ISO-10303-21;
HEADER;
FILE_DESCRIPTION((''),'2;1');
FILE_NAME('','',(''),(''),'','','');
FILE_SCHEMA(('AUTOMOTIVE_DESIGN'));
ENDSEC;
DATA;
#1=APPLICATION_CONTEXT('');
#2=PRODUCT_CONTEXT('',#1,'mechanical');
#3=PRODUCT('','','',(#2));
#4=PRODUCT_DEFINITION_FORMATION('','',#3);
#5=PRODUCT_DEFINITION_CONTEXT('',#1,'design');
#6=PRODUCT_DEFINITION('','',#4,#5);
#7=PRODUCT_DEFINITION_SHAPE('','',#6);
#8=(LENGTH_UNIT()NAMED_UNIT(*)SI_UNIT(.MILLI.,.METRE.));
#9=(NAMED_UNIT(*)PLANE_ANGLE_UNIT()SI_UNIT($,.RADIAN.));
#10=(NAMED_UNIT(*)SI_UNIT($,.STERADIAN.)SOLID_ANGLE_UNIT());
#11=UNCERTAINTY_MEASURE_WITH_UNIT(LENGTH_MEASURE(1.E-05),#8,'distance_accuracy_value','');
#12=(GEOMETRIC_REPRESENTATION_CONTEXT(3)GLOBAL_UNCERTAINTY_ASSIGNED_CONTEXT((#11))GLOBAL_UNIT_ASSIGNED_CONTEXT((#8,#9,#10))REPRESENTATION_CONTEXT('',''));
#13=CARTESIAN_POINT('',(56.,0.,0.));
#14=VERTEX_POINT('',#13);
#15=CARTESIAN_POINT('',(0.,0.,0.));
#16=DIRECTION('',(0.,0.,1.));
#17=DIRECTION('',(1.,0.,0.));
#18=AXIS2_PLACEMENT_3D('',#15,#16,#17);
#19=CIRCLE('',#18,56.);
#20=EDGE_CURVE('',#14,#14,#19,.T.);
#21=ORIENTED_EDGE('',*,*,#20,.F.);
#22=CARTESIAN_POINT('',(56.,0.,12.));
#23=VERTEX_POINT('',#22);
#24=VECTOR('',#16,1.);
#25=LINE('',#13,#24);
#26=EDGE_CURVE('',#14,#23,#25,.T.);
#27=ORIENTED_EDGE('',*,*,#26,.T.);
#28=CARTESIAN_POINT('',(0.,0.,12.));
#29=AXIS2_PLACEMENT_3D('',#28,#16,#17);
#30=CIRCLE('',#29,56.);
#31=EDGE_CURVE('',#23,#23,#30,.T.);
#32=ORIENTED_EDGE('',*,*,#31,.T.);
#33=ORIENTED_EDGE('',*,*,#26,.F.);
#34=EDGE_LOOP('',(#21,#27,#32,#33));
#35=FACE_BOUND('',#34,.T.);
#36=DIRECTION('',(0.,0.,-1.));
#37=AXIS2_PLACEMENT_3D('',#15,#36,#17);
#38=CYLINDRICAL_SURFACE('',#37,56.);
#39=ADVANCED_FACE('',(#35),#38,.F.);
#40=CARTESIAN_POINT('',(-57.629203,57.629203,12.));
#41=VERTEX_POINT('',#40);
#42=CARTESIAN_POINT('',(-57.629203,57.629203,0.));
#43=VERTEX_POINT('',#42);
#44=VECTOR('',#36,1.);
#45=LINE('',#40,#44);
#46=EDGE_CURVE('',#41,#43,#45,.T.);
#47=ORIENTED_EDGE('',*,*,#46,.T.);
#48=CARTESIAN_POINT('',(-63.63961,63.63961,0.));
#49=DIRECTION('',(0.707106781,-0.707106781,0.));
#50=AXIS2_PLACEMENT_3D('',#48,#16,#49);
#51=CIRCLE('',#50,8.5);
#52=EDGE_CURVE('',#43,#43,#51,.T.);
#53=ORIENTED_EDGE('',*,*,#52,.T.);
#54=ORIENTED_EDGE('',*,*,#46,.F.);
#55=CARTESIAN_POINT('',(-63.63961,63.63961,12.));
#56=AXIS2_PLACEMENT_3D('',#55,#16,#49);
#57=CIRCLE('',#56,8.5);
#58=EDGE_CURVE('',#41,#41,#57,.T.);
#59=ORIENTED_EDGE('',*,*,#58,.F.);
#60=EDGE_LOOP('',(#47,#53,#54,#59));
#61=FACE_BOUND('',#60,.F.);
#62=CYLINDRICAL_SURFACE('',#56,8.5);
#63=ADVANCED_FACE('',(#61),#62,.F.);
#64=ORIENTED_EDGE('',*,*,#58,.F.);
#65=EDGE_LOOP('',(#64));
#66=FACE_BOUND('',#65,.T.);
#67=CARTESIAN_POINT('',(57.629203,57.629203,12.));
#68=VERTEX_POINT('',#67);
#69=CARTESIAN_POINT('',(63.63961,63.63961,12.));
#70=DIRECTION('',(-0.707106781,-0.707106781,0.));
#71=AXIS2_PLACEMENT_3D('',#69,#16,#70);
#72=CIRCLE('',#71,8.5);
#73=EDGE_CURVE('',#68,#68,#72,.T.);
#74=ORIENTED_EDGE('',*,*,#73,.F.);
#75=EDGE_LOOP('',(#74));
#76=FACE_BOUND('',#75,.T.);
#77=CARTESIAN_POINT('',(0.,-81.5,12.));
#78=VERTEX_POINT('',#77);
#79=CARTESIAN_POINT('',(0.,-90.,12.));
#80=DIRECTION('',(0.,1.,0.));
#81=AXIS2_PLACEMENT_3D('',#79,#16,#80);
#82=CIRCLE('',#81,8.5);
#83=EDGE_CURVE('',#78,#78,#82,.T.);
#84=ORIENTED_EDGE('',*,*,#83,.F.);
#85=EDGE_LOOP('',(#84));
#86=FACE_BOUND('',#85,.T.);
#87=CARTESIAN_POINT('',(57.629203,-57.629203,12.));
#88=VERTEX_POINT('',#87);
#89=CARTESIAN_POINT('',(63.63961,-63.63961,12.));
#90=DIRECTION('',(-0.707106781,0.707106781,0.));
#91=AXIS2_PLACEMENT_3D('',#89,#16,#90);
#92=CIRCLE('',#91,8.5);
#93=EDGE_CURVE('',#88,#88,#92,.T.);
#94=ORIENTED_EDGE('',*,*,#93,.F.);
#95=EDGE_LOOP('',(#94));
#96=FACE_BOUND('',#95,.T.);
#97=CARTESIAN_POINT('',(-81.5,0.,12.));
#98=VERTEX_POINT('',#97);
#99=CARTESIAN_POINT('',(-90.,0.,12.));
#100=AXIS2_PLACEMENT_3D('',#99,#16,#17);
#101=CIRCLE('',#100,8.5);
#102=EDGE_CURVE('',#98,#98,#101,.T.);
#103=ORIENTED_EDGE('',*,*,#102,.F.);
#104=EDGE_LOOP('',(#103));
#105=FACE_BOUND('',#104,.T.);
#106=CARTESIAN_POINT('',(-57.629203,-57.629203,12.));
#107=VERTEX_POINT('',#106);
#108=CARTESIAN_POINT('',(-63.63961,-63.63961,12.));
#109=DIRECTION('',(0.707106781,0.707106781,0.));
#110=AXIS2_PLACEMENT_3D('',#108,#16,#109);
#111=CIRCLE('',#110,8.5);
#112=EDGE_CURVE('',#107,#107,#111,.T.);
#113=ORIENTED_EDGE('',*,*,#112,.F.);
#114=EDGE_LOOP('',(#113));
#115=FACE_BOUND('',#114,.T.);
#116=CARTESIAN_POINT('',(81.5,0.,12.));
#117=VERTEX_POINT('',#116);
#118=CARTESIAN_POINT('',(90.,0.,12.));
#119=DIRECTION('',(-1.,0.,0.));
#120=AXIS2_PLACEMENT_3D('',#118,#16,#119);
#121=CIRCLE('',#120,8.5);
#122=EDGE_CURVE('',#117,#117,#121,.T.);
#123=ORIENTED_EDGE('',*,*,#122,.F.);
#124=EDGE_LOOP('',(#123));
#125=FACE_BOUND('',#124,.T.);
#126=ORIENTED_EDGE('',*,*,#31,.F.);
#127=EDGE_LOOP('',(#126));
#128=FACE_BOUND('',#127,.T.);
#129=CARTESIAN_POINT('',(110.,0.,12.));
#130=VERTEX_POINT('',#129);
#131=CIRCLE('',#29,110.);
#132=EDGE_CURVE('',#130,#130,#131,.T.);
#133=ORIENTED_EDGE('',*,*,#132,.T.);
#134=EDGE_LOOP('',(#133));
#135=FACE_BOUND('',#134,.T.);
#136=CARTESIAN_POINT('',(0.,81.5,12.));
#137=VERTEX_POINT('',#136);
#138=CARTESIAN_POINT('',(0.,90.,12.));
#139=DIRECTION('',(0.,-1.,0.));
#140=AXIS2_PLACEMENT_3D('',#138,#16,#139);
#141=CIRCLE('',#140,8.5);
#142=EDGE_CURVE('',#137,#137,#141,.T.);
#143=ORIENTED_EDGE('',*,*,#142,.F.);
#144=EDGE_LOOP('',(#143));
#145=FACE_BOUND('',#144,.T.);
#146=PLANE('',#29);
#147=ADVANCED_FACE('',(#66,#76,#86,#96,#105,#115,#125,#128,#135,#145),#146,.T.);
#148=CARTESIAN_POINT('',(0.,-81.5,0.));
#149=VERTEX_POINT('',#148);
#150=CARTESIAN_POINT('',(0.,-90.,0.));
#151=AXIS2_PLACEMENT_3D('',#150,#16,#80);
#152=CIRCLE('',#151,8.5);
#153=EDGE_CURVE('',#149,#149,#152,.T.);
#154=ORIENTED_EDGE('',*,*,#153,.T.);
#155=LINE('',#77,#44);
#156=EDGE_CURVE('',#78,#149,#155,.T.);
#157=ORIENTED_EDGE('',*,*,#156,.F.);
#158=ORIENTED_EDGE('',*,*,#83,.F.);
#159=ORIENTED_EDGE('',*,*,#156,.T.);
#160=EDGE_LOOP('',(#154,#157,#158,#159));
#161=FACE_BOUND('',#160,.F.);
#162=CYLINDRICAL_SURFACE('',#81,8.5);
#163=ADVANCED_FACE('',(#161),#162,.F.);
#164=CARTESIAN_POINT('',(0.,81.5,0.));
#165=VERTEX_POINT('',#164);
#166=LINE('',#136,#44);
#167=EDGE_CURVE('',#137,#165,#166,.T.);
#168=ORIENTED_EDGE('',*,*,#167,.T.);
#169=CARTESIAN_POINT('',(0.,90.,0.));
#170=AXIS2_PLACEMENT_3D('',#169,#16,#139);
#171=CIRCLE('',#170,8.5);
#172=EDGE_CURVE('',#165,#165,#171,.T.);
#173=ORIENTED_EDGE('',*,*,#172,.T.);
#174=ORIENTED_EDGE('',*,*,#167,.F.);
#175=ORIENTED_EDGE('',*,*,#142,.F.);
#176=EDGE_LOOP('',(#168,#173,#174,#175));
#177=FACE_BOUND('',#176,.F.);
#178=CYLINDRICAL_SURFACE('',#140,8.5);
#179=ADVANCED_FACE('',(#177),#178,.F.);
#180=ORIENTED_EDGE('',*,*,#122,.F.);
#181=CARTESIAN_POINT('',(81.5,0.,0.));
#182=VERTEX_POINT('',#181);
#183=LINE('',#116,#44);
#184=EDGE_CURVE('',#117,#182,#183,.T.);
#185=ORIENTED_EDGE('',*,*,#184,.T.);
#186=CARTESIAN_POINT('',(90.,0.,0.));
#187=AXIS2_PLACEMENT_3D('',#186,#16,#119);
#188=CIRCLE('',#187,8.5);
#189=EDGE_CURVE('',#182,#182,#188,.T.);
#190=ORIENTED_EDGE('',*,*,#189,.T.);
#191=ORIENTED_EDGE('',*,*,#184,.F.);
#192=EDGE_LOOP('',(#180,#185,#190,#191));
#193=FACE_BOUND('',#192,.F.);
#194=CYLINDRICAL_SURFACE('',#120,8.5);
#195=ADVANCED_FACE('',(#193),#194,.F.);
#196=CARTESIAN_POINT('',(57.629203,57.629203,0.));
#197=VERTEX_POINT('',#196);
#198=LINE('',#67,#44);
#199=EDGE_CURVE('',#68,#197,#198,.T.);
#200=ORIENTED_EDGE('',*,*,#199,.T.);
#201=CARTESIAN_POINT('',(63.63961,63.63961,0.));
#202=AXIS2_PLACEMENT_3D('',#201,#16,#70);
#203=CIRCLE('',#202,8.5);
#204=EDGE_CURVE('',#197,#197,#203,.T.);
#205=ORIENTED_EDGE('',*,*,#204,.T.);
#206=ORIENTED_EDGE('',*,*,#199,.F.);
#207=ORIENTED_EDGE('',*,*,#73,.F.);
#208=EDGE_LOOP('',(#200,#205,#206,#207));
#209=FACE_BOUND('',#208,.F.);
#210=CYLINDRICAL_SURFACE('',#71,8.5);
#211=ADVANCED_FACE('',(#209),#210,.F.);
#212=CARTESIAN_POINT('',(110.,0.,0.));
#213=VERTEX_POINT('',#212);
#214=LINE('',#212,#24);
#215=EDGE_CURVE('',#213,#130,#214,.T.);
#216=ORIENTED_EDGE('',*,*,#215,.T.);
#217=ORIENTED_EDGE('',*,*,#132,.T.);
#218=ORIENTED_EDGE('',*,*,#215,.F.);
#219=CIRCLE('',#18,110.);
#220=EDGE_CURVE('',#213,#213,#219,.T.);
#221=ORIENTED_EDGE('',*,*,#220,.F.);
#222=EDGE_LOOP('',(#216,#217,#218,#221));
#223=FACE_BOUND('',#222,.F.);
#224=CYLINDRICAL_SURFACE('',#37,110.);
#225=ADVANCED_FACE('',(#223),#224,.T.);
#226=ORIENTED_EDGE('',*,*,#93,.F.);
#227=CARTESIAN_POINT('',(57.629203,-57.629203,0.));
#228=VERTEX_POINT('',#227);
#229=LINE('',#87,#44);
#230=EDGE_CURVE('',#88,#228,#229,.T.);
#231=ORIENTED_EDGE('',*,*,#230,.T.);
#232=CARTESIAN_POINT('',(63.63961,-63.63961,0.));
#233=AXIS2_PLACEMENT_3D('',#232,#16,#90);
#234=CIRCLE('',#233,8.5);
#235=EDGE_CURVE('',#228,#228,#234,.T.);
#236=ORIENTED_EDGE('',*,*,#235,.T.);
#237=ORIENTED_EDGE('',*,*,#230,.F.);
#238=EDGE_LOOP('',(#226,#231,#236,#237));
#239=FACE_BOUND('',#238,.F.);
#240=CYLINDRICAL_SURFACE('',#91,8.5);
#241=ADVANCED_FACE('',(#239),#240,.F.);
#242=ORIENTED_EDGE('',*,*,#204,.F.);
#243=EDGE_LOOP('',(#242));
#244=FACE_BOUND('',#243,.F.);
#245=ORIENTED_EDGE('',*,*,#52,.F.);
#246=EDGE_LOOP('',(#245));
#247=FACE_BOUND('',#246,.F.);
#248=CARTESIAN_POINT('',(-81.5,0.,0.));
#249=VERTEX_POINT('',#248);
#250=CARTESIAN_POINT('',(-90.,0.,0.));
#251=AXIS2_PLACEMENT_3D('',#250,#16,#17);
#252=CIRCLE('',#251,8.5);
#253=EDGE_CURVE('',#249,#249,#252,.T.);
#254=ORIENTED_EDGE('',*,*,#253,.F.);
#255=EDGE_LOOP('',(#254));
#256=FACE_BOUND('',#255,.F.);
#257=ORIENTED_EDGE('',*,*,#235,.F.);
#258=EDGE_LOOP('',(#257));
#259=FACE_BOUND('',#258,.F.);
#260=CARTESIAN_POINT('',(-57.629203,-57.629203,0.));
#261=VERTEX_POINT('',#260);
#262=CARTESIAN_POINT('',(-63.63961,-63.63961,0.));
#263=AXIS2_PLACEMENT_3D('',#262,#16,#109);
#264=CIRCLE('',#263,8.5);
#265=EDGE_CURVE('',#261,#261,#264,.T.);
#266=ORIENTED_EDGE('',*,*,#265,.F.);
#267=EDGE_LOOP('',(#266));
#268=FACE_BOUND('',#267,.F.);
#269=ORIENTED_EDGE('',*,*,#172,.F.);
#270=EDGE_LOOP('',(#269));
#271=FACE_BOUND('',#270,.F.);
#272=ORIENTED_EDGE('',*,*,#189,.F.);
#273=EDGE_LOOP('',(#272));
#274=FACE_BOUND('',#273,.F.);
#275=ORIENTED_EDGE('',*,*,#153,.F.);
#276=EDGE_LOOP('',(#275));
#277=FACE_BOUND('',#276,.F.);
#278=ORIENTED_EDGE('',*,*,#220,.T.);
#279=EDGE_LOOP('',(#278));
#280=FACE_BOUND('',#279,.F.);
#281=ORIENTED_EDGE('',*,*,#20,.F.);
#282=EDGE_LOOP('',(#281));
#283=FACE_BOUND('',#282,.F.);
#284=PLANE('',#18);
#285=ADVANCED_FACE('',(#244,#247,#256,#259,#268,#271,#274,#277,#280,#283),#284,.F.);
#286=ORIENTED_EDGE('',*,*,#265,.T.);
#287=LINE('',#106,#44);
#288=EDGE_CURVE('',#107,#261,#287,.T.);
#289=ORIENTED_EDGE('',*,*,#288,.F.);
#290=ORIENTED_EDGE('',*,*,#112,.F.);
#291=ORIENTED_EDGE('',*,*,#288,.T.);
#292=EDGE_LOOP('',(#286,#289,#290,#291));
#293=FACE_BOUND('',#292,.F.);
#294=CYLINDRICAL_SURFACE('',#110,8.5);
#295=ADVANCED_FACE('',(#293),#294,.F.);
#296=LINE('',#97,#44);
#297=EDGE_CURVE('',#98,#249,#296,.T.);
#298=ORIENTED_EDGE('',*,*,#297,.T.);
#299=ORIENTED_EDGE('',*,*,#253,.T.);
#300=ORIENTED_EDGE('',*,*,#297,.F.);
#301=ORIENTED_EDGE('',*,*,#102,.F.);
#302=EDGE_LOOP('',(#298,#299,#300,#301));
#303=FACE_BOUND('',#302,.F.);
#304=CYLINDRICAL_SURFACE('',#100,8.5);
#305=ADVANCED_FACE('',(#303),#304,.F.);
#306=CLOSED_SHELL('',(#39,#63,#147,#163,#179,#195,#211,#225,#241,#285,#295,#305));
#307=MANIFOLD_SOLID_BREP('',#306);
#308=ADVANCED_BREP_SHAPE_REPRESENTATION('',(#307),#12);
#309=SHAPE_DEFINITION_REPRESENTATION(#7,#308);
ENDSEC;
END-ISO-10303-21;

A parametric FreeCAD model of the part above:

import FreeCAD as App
import Part
import Sketcher
from FreeCAD import Vector
Q = App.Units.Quantity

doc = App.newDocument("Part")
body = doc.addObject("PartDesign::Body", "Body")

# Sketch on XY plane
sketch1 = body.newObject("Sketcher::SketchObject", "Sketch")
sketch1.AttachmentSupport = (doc.getObject("XY_Plane"), [""])
sketch1.MapMode = "FlatFace"
sketch1.addGeometry(Part.Circle(Vector(0, 0, 0), Vector(0, 0, 1), 110), False)
sketch1.addGeometry(Part.Circle(Vector(0, 0, 0), Vector(0, 0, 1), 56), False)
sketch1.addConstraint(Sketcher.Constraint("Coincident", 0, 3, -1, 1))
sketch1.addConstraint(Sketcher.Constraint("Coincident", 1, 3, -1, 1))
sketch1.addConstraint(Sketcher.Constraint("Diameter", 0, Q("220 mm")))
sketch1.addConstraint(Sketcher.Constraint("Diameter", 1, Q("112 mm")))
pad1 = body.newObject("PartDesign::Pad", "Pad")
pad1.Profile = sketch1
pad1.Length = 12

# Sketch on XY plane
sketch2 = body.newObject("Sketcher::SketchObject", "Sketch001")
sketch2.AttachmentSupport = (doc.getObject("XY_Plane"), [""])
sketch2.MapMode = "FlatFace"
sketch2.AttachmentOffset = App.Placement(Vector(0, 0, 12), App.Rotation())
sketch2.addGeometry(Part.Circle(Vector(-90, 0, 0), Vector(0, 0, 1), 8), False)
sketch2.addConstraint(Sketcher.Constraint("PointOnObject", 0, 3, -1))
sketch2.addConstraint(Sketcher.Constraint("Diameter", 0, Q("17 mm")))
sketch2.addConstraint(Sketcher.Constraint("DistanceX", 0, 3, -1, 1, Q("90 mm")))
pocket1 = body.newObject("PartDesign::Pocket", "Pocket")
pocket1.Profile = sketch2
pocket1.Length = 12
doc.recompute()

polarpattern = body.newObject("PartDesign::PolarPattern", "PolarPattern")
polarpattern.Originals = [pocket1]
polarpattern.Axis = (doc.getObject("Z_Axis"), [""])
polarpattern.Angle = 360
polarpattern.Occurrences = 8
body.Tip = polarpattern

doc.recompute()
